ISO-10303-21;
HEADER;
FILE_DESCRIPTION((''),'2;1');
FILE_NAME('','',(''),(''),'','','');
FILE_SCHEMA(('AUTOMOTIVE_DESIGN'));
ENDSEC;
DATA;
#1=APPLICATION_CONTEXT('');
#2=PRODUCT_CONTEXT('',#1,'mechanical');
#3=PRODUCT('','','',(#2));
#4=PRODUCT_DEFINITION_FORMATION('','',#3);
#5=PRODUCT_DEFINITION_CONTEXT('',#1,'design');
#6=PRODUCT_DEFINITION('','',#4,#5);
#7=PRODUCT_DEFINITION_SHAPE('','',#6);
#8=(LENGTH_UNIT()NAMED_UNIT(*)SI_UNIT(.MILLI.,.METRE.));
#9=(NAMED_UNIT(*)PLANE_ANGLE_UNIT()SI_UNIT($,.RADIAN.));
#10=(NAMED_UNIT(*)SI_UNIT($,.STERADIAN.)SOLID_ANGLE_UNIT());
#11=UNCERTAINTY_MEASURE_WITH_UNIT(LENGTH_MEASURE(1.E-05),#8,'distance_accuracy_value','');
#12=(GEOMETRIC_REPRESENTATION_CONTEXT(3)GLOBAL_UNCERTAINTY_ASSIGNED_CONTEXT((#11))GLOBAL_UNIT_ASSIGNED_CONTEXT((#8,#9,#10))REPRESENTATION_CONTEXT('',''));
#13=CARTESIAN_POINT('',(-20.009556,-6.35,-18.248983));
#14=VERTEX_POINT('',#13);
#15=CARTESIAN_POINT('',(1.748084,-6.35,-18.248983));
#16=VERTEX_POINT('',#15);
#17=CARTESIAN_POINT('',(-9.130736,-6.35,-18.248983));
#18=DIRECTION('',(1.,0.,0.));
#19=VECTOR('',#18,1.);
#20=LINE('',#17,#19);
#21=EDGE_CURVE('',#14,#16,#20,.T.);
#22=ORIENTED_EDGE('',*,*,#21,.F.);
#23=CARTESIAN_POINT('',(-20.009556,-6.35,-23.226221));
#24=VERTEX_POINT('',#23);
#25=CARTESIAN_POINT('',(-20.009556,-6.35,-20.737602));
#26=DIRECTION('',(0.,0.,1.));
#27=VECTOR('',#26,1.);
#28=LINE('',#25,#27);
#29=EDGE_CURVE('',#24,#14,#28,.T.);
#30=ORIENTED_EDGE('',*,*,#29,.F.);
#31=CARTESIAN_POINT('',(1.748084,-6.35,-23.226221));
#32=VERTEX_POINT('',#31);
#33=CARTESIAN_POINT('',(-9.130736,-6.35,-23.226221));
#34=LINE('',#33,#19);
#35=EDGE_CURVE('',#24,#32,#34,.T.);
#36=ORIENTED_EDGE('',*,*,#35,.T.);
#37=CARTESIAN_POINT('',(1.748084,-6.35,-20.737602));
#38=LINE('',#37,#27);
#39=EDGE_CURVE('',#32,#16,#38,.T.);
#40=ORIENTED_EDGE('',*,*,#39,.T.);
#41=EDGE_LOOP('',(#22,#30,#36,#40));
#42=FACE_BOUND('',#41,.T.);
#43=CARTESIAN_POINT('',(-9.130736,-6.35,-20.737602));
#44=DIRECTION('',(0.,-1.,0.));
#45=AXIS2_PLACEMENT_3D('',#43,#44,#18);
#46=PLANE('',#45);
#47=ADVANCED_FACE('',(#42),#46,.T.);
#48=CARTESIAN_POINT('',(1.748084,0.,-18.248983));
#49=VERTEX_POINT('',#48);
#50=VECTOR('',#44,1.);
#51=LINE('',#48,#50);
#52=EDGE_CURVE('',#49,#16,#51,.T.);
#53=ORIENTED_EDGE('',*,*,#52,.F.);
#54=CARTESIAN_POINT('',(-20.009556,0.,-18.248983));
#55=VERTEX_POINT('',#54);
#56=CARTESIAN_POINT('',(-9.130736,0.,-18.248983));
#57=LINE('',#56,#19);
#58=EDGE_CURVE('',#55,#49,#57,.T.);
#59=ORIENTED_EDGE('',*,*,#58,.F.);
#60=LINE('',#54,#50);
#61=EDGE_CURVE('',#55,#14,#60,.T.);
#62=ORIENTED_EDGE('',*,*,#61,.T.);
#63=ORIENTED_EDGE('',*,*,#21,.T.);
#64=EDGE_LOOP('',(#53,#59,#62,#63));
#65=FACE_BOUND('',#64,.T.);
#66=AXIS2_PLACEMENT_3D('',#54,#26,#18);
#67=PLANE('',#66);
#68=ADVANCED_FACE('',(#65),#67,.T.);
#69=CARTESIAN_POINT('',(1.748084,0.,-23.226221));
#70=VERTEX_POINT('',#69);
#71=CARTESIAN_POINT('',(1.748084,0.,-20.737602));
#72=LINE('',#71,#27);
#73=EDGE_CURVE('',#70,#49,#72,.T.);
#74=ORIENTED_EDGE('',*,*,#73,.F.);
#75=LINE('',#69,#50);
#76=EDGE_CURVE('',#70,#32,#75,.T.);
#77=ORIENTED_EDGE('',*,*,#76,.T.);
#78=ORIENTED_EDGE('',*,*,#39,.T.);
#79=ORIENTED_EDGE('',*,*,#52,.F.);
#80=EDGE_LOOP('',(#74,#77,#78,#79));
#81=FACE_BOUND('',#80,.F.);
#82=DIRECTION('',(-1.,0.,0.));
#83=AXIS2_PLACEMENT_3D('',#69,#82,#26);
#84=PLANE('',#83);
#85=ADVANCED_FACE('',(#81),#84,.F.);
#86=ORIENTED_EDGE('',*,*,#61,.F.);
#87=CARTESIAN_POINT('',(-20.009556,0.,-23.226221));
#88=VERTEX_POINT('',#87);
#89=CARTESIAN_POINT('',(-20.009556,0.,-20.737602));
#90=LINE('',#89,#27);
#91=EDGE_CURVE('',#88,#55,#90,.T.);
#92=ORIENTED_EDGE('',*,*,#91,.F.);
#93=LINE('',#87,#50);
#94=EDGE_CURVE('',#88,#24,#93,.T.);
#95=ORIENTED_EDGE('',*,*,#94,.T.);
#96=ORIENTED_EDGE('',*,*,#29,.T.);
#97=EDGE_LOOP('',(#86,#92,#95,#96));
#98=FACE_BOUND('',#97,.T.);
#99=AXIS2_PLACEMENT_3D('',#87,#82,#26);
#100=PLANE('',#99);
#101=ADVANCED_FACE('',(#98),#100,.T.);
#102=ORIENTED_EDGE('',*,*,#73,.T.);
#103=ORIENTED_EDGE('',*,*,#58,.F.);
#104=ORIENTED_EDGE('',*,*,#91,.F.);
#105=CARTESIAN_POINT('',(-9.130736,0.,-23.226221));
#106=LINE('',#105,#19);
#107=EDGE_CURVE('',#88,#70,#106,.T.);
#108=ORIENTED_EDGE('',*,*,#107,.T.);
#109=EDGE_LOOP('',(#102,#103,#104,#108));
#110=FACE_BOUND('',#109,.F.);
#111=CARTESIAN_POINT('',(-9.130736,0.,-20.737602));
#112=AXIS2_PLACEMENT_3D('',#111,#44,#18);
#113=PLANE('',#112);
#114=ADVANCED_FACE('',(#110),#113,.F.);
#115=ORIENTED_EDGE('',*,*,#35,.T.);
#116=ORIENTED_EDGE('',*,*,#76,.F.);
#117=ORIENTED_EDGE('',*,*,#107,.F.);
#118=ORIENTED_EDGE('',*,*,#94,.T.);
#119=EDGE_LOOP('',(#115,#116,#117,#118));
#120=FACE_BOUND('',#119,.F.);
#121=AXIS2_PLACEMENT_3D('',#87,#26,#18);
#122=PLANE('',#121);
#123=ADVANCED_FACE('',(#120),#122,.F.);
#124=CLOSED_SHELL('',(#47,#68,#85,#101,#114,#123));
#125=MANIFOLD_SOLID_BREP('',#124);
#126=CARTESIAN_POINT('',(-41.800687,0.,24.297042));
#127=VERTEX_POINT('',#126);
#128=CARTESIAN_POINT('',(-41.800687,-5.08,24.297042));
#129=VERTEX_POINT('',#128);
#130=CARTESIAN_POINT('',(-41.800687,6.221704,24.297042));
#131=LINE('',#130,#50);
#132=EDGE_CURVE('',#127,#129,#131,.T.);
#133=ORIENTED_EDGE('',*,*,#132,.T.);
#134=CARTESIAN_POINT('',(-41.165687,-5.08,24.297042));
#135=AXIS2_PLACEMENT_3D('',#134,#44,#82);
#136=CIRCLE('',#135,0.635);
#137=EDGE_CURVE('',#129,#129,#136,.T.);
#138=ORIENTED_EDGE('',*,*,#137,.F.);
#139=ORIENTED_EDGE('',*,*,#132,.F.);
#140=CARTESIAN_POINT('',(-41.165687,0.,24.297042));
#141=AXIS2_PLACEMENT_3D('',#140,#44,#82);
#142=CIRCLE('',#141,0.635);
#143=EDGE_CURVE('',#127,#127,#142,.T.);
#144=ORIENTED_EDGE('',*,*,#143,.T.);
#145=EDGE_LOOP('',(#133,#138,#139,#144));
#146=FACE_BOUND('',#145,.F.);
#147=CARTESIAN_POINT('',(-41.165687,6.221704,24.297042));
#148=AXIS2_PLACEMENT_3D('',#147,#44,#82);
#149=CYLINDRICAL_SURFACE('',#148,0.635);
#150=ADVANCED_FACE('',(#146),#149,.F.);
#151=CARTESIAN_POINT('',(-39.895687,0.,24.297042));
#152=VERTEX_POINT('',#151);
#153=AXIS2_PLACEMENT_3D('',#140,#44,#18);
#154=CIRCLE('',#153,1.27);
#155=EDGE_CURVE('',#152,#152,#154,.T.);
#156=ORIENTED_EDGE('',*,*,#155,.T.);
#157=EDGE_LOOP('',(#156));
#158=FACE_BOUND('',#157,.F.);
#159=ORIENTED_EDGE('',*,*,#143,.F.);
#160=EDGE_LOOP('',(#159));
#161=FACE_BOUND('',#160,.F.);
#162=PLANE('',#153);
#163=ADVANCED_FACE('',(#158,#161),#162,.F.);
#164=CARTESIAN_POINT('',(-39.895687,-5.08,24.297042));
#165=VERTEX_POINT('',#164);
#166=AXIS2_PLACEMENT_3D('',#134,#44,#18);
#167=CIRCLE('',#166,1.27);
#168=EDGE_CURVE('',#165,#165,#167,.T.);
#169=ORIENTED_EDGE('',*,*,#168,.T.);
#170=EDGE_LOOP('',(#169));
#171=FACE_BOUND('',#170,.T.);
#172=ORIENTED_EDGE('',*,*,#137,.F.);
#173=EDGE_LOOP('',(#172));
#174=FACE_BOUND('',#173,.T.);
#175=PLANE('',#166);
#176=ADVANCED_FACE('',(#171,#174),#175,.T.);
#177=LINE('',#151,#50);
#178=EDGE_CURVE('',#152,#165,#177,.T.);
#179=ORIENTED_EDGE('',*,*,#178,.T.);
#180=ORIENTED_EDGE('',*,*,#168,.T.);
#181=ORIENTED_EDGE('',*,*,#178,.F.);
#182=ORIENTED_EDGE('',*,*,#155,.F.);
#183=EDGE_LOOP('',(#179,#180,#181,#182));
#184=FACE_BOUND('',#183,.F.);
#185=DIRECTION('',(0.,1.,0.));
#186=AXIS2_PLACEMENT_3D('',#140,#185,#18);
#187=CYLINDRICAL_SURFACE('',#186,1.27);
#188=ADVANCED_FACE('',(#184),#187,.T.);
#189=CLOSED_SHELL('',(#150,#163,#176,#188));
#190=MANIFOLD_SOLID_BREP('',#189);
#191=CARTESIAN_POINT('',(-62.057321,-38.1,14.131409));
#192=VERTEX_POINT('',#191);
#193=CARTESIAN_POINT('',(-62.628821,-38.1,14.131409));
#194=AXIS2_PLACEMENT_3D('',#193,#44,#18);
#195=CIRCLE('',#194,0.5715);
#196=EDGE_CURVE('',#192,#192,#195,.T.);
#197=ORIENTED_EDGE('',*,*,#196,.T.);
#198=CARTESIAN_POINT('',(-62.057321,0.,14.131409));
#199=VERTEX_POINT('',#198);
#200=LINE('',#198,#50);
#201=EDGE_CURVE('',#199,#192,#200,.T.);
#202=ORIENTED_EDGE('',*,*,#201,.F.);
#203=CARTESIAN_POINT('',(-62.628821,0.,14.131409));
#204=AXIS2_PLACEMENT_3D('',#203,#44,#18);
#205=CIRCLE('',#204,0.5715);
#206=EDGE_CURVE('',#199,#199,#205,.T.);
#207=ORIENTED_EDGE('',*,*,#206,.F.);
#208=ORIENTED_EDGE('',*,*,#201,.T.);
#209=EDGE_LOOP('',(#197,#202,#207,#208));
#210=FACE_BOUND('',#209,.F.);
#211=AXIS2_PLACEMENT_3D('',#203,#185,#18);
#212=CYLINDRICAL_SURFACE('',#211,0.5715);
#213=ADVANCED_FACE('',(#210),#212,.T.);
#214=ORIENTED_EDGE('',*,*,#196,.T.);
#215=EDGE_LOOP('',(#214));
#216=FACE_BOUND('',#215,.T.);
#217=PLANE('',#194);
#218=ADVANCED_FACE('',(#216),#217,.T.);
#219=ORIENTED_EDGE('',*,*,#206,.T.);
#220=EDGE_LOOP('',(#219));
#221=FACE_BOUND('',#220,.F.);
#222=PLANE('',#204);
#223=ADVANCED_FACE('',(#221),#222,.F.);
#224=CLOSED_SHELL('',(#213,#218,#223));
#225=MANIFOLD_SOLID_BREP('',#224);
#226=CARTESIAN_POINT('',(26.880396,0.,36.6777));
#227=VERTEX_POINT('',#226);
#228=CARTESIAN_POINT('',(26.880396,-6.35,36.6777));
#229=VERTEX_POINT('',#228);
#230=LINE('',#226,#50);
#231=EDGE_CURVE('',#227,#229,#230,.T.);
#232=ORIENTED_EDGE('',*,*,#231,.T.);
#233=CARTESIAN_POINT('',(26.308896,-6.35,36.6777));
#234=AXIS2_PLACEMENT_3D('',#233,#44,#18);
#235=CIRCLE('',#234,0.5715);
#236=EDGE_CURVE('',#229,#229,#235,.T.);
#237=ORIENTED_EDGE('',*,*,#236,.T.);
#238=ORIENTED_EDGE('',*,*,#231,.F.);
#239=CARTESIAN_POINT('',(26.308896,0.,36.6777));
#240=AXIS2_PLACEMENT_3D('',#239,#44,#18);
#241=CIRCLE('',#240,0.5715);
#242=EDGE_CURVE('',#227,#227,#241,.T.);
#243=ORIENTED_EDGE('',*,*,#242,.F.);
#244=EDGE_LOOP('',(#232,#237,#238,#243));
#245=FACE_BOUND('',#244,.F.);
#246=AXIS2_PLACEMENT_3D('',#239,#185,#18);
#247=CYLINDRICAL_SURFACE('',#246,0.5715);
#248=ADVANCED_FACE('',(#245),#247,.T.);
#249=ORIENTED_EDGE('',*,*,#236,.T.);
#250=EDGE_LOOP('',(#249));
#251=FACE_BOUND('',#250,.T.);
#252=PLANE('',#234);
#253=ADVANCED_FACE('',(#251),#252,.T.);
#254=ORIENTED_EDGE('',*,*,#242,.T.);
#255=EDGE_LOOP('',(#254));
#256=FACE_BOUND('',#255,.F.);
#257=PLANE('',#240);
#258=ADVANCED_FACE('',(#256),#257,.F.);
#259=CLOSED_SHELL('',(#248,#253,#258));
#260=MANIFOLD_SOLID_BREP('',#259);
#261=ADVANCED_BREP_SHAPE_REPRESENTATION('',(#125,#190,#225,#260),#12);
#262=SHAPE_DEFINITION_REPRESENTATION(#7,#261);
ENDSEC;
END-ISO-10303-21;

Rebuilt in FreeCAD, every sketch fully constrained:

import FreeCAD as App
import Part
import Sketcher

V = App.Vector
Q = App.Units.Quantity


def add_polygon(sketch, points):
    """Adds a closed chain of lines whose ends are joined by coincident constraints."""
    first, n = sketch.GeometryCount, len(points)
    for a, b in zip(points, points[1:] + points[:1]):
        sketch.addGeometry(Part.LineSegment(App.Vector(*a, 0), App.Vector(*b, 0)), False)
    for i in range(n):
        sketch.addConstraint(Sketcher.Constraint("Coincident", first + i, 2, first + (i + 1) % n, 1))

doc = App.newDocument("Part")
body = doc.addObject("PartDesign::Body", "Body")

sketch1 = doc.addObject("Sketcher::SketchObject", "Sketch")
body.addObject(sketch1)
sketch1.AttachmentSupport = (doc.XZ_Plane, [""])
sketch1.MapMode = "FlatFace"
sketch1.addGeometry(Part.Circle(V(-41.2, 24.3, 0), V(0, 0, 1), 1.3), False)
sketch1.addConstraint([
    Sketcher.Constraint("Diameter", 0, Q("0.1 in")),
    Sketcher.Constraint("DistanceY", -1, 1, 0, 3, 24.297042),
    Sketcher.Constraint("DistanceX", 0, 3, -1, 1, 41.165687),
])
pad1 = doc.addObject("PartDesign::Pad", "Pad")
body.addObject(pad1)
pad1.Profile = sketch1
pad1.Length = Q("0.2 in")

sketch2 = doc.addObject("Sketcher::SketchObject", "Sketch001")
body.addObject(sketch2)
sketch2.AttachmentSupport = (doc.XZ_Plane, [""])
sketch2.MapMode = "FlatFace"
sketch2.addGeometry(Part.Circle(V(-41.2, 24.3, 0), V(0, 0, 1), 0.6), False)
sketch2.addConstraint([
    Sketcher.Constraint("Diameter", 0, Q("0.05 in")),
    Sketcher.Constraint("DistanceY", -1, 1, 0, 3, 24.297042),
    Sketcher.Constraint("DistanceX", 0, 3, -1, 1, 41.165687),
])
doc.recompute()
hole = doc.addObject("PartDesign::Hole", "Hole")
body.addObject(hole)
hole.Profile = sketch2
hole.ThreadType = "None"
hole.Diameter = Q("0.05 in")
hole.DepthType = "ThroughAll"
hole.Reversed = True
body2 = doc.addObject("PartDesign::Body", "Body001")

sketch3 = doc.addObject("Sketcher::SketchObject", "Sketch002")
body2.addObject(sketch3)
sketch3.AttachmentSupport = (doc.getObject("XZ_Plane001"), [""])
sketch3.MapMode = "FlatFace"
add_polygon(sketch3, [(-20, -18.2), (-20, -23.2), (1.7, -23.2), (1.7, -18.2)])
sketch3.addConstraint([
    Sketcher.Constraint("Vertical", 0),
    Sketcher.Constraint("Horizontal", 1),
    Sketcher.Constraint("Vertical", 2),
    Sketcher.Constraint("Horizontal", 3),
    Sketcher.Constraint("DistanceX", 1, 1, 1, 2, Q("0.8566 in")),
    Sketcher.Constraint("DistanceY", 0, 2, 0, 1, 4.977238),
    Sketcher.Constraint("DistanceY", 0, 2, -1, 1, 23.226221),
    Sketcher.Constraint("DistanceX", 0, 2, -1, 1, 20.009556),
])
pad2 = doc.addObject("PartDesign::Pad", "Pad001")
body2.addObject(pad2)
pad2.Profile = sketch3
pad2.Length = Q("0.25 in")
body3 = doc.addObject("PartDesign::Body", "Body002")

sketch4 = doc.addObject("Sketcher::SketchObject", "Sketch003")
body3.addObject(sketch4)
sketch4.AttachmentSupport = (doc.getObject("XZ_Plane002"), [""])
sketch4.MapMode = "FlatFace"
sketch4.addGeometry(Part.Circle(V(-62.6, 14.1, 0), V(0, 0, 1), 0.6), False)
sketch4.addConstraint([
    Sketcher.Constraint("Diameter", 0, Q("0.045 in")),
    Sketcher.Constraint("DistanceX", 0, 3, -1, 1, 62.628821),
    Sketcher.Constraint("DistanceY", -1, 1, 0, 3, 14.131409),
])
pad3 = doc.addObject("PartDesign::Pad", "Pad002")
body3.addObject(pad3)
pad3.Profile = sketch4
pad3.Length = Q("1.5 in")
body4 = doc.addObject("PartDesign::Body", "Body003")

sketch5 = doc.addObject("Sketcher::SketchObject", "Sketch004")
body4.addObject(sketch5)
sketch5.AttachmentSupport = (doc.getObject("XZ_Plane003"), [""])
sketch5.MapMode = "FlatFace"
sketch5.addGeometry(Part.Circle(V(26.3, 36.7, 0), V(0, 0, 1), 0.6), False)
sketch5.addConstraint([
    Sketcher.Constraint("Diameter", 0, Q("0.045 in")),
    Sketcher.Constraint("DistanceY", -1, 1, 0, 3, 36.6777),
    Sketcher.Constraint("DistanceX", -1, 1, 0, 3, 26.308896),
])
pad4 = doc.addObject("PartDesign::Pad", "Pad003")
body4.addObject(pad4)
pad4.Profile = sketch5
pad4.Length = Q("0.25 in")

doc.recompute()
